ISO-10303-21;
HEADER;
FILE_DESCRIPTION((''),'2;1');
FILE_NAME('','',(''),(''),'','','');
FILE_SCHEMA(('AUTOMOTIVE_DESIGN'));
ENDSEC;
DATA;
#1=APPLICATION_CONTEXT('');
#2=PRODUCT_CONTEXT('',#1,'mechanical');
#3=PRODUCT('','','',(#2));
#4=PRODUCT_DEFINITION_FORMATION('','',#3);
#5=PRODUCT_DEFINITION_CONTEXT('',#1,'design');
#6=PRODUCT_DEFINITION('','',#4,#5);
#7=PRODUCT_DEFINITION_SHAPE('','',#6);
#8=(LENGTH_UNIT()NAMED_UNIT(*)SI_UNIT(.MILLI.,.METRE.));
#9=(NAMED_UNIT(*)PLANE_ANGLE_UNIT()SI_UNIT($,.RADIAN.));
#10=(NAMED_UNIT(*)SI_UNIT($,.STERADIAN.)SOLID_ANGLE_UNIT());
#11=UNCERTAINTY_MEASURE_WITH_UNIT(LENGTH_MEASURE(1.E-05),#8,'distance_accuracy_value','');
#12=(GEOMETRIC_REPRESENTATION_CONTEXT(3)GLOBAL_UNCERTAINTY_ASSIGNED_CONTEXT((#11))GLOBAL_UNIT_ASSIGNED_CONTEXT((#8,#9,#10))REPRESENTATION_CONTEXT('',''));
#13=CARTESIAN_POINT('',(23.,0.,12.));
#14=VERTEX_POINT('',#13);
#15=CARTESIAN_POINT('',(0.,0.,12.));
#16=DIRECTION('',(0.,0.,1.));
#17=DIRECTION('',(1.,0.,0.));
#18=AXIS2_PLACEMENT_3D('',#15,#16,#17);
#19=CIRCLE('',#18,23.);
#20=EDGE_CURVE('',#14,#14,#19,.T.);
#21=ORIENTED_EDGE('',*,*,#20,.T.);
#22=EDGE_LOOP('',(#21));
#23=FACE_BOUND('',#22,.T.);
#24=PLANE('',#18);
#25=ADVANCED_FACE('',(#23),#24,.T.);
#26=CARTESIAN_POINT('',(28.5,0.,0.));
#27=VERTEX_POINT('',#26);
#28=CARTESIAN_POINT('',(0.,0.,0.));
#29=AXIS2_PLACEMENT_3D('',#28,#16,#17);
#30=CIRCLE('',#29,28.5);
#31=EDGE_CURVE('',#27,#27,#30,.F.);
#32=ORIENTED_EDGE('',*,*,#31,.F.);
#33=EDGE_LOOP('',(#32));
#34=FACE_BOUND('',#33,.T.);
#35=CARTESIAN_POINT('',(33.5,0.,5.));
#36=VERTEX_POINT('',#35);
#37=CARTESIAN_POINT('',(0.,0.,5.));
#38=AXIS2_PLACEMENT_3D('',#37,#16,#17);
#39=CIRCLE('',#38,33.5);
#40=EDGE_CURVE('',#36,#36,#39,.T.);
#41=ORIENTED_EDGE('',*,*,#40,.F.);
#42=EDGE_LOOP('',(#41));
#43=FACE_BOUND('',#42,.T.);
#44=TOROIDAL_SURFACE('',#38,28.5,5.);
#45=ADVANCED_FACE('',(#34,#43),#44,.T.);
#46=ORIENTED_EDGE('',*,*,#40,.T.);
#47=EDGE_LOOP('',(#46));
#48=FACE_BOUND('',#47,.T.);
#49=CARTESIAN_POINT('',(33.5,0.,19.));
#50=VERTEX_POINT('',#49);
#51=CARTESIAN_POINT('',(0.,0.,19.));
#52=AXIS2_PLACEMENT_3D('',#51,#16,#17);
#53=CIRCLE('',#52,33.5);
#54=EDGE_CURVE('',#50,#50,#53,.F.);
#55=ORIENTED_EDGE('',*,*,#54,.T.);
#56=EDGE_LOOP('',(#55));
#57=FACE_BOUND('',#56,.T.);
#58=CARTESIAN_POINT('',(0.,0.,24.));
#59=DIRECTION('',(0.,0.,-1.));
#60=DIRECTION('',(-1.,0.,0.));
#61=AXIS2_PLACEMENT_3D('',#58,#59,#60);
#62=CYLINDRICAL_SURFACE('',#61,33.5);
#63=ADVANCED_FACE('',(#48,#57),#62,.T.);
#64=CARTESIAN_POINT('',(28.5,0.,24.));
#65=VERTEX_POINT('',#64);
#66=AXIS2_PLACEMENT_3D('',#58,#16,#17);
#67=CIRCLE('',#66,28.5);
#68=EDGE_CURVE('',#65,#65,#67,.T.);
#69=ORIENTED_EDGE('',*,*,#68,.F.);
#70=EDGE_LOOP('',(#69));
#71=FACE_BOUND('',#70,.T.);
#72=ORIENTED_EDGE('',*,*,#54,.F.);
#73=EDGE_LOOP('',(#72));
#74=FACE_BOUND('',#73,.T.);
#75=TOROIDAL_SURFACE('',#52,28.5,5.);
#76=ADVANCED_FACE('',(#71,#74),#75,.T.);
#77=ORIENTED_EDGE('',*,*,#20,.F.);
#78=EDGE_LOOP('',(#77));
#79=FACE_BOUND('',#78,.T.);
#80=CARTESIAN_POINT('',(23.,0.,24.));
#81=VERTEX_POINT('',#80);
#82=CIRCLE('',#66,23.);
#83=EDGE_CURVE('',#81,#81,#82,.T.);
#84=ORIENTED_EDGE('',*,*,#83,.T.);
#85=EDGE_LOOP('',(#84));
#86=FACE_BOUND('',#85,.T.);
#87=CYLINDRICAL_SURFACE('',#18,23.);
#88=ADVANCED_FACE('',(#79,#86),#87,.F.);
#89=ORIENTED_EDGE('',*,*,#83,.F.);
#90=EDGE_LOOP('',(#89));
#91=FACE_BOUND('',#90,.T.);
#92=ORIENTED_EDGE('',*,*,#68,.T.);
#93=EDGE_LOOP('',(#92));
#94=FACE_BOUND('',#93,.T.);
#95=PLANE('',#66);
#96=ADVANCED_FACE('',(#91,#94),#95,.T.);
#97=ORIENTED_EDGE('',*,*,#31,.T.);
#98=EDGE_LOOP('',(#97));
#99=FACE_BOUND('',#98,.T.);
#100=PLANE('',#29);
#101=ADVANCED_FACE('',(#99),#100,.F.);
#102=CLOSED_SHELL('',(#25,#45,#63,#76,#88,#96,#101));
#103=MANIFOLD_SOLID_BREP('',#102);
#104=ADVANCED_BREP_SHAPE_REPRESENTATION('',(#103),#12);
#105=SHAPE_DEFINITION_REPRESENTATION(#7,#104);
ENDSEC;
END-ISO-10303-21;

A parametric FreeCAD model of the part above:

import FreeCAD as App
import Part
import Sketcher
from FreeCAD import Vector
Q = App.Units.Quantity


def edges_at(feature, points):
    """Names of the edges that pass closest to the given points."""
    edges = feature.Shape.Edges
    near = lambda p: min(range(len(edges)), key=lambda i: edges[i].distToShape(Part.Vertex(*p))[0])
    return sorted({f"Edge{near(p) + 1}" for p in points})

doc = App.newDocument("Part")
params = doc.addObject("Spreadsheet::Sheet", "Params")
for row, (alias, value) in enumerate([
    ("sketch1_diameter", "67 mm"),
    ("pad1_length", "24 mm"),
    ("fillet_radius", "5 mm"),
    ("fillet2_radius", "5 mm"),
    ("sketch2_diameter", "46 mm"),
    ("pocket1_length", "12 mm"),
], start=1):
    params.set(f"A{row}", alias)
    params.set(f"B{row}", "=" + value)
    params.setAlias(f"B{row}", alias)

body = doc.addObject("PartDesign::Body", "Body")

sketch1 = body.newObject("Sketcher::SketchObject", "Sketch")
sketch1.AttachmentSupport = (doc.getObject("XY_Plane"), [""])
sketch1.MapMode = "FlatFace"
sketch1.addGeometry(Part.Circle(Vector(0, 0, 0), Vector(0, 0, 1), 34), False)
sketch1.addConstraint([
    Sketcher.Constraint("Coincident", 0, 3, -1, 1),
    Sketcher.Constraint("Diameter", 0, Q("67 mm")),
])
sketch1.setExpression("Constraints[1]", "Params.sketch1_diameter")
pad1 = body.newObject("PartDesign::Pad", "Pad")
pad1.Profile = sketch1
pad1.setExpression("Length", "Params.pad1_length")
doc.recompute()

fillet = body.newObject("PartDesign::Fillet", "Fillet")
fillet.Base = (pad1, edges_at(pad1, [(-33.5, 0, 24)]))
fillet.setExpression("Radius", "Params.fillet_radius")
doc.recompute()

fillet2 = body.newObject("PartDesign::Fillet", "Fillet001")
fillet2.Base = (fillet, edges_at(fillet, [(-33.5, 0, 0)]))
fillet2.setExpression("Radius", "Params.fillet2_radius")

sketch2 = body.newObject("Sketcher::SketchObject", "Sketch001")
sketch2.AttachmentSupport = (doc.getObject("XY_Plane"), [""])
sketch2.MapMode = "FlatFace"
sketch2.AttachmentOffset = App.Placement(Vector(0, 0, 24), App.Rotation())
sketch2.addGeometry(Part.Circle(Vector(0, 0, 0), Vector(0, 0, 1), 23), False)
sketch2.addConstraint([
    Sketcher.Constraint("Coincident", 0, 3, -1, 1),
    Sketcher.Constraint("Diameter", 0, Q("46 mm")),
])
sketch2.setExpression("Constraints[1]", "Params.sketch2_diameter")
pocket1 = body.newObject("PartDesign::Pocket", "Pocket")
pocket1.Profile = sketch2
pocket1.setExpression("Length", "Params.pocket1_length")

doc.recompute()
